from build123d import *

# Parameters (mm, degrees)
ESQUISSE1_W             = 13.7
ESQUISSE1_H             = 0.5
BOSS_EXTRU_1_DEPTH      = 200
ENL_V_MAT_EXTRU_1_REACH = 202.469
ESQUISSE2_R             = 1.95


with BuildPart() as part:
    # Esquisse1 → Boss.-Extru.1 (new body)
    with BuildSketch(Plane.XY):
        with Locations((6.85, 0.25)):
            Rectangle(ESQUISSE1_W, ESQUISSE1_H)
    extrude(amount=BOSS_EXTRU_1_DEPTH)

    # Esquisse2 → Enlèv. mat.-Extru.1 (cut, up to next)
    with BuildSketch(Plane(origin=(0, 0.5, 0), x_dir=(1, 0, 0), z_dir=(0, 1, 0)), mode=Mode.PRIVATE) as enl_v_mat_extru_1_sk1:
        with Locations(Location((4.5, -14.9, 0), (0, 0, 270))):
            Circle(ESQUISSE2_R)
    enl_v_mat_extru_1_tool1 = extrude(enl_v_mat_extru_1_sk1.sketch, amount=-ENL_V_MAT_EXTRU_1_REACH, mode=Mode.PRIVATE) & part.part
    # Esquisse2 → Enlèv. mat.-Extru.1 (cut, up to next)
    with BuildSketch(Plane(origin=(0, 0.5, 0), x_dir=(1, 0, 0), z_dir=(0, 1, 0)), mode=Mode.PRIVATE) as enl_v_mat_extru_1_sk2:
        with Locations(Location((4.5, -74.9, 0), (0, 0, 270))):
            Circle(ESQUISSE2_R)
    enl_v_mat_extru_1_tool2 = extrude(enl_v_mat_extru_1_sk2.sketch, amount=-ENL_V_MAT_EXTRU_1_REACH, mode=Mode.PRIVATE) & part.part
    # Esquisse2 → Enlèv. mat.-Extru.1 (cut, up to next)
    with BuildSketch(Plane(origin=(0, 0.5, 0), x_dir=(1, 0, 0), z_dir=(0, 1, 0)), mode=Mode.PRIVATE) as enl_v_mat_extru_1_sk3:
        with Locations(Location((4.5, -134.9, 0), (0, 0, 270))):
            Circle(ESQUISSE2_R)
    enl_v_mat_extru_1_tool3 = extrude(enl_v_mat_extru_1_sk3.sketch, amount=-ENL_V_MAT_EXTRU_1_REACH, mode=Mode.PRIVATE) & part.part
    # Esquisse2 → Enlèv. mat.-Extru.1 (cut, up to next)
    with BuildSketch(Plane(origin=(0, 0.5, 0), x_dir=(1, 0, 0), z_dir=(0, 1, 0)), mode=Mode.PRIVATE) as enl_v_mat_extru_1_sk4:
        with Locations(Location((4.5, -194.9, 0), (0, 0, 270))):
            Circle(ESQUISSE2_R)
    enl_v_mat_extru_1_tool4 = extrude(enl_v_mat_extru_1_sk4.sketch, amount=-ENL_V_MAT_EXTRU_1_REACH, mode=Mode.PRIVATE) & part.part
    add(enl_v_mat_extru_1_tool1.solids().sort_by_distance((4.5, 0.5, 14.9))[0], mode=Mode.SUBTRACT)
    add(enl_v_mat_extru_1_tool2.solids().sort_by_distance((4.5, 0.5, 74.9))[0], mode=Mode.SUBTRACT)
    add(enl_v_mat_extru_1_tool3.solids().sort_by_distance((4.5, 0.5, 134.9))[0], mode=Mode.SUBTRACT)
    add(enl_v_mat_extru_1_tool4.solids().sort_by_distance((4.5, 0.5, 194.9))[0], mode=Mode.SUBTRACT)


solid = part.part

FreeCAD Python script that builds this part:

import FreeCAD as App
import Part
import Sketcher

V = App.Vector

doc = App.newDocument("Part")
params = doc.addObject("Spreadsheet::Sheet", "Params")
for row, (alias, value) in enumerate([
    ("sketch1_width", "13.7 mm"),
    ("sketch1_height", "0.5 mm"),
    ("pad1_length", "200 mm"),
    ("sketch2_diameter", "3.9 mm"),
    ("sketch3_diameter", "3.9 mm"),
    ("sketch4_diameter", "3.9 mm"),
    ("sketch5_diameter", "3.9 mm"),
], start=1):
    params.set(f"A{row}", alias)
    params.set(f"B{row}", "=" + value)
    params.setAlias(f"B{row}", alias)

body = doc.addObject("PartDesign::Body", "Body")

sketch1 = body.newObject("Sketcher::SketchObject", "Sketch")
sketch1.AttachmentSupport = (doc.getObject("XY_Plane"), [""])
sketch1.MapMode = "FlatFace"
sketch1.addGeometry(Part.LineSegment(V(0, 0.5, 0), V(0, 0, 0)), False)
sketch1.addGeometry(Part.LineSegment(V(0, 0, 0), V(13.7, 0, 0)), False)
sketch1.addGeometry(Part.LineSegment(V(13.7, 0, 0), V(13.7, 0.5, 0)), False)
sketch1.addGeometry(Part.LineSegment(V(13.7, 0.5, 0), V(0, 0.5, 0)), False)
sketch1.addConstraint(Sketcher.Constraint("Coincident", 0, 2, 1, 1))
sketch1.addConstraint(Sketcher.Constraint("Coincident", 1, 2, 2, 1))
sketch1.addConstraint(Sketcher.Constraint("Coincident", 2, 2, 3, 1))
sketch1.addConstraint(Sketcher.Constraint("Coincident", 3, 2, 0, 1))
sketch1.addConstraint(Sketcher.Constraint("Vertical", 0))
sketch1.addConstraint(Sketcher.Constraint("Horizontal", 1))
sketch1.addConstraint(Sketcher.Constraint("Vertical", 2))
sketch1.addConstraint(Sketcher.Constraint("Horizontal", 3))
sketch1.addConstraint(Sketcher.Constraint("Coincident", 0, 2, -1, 1))
sketch1.addConstraint(Sketcher.Constraint("DistanceX", 1, 1, 1, 2, 13.7))
sketch1.addConstraint(Sketcher.Constraint("DistanceY", 0, 2, 0, 1, 0.5))
sketch1.setExpression("Constraints[9]", "Params.sketch1_width")
sketch1.setExpression("Constraints[10]", "Params.sketch1_height")
pad1 = body.newObject("PartDesign::Pad", "Pad")
pad1.Profile = sketch1
pad1.setExpression("Length", "Params.pad1_length")

sketch2 = body.newObject("Sketcher::SketchObject", "Sketch001")
sketch2.AttachmentSupport = (doc.getObject("XZ_Plane"), [""])
sketch2.MapMode = "FlatFace"
sketch2.AttachmentOffset = App.Placement(V(0, 0, -0.5), App.Rotation())
sketch2.addGeometry(Part.Circle(V(4.5, 14.9, 0), V(0, 0, 1), 1.9), False)
sketch2.addConstraint(Sketcher.Constraint("Diameter", 0, 3.9))
sketch2.addConstraint(Sketcher.Constraint("DistanceX", -1, 1, 0, 3, 4.5))
sketch2.addConstraint(Sketcher.Constraint("DistanceY", -1, 1, 0, 3, 14.9))
sketch2.setExpression("Constraints[0]", "Params.sketch2_diameter")
pocket1 = body.newObject("PartDesign::Pocket", "Pocket")
pocket1.Profile = sketch2
pocket1.Type = "UpToFirst"
pocket1.Reversed = True

sketch3 = body.newObject("Sketcher::SketchObject", "Sketch002")
sketch3.AttachmentSupport = (doc.getObject("XZ_Plane"), [""])
sketch3.MapMode = "FlatFace"
sketch3.AttachmentOffset = App.Placement(V(0, 0, -0.5), App.Rotation())
sketch3.addGeometry(Part.Circle(V(4.5, 74.9, 0), V(0, 0, 1), 1.9), False)
sketch3.addConstraint(Sketcher.Constraint("Diameter", 0, 3.9))
sketch3.addConstraint(Sketcher.Constraint("DistanceX", -1, 1, 0, 3, 4.5))
sketch3.addConstraint(Sketcher.Constraint("DistanceY", -1, 1, 0, 3, 74.9))
sketch3.setExpression("Constraints[0]", "Params.sketch3_diameter")
pocket2 = body.newObject("PartDesign::Pocket", "Pocket001")
pocket2.Profile = sketch3
pocket2.Type = "UpToFirst"
pocket2.Reversed = True

sketch4 = body.newObject("Sketcher::SketchObject", "Sketch003")
sketch4.AttachmentSupport = (doc.getObject("XZ_Plane"), [""])
sketch4.MapMode = "FlatFace"
sketch4.AttachmentOffset = App.Placement(V(0, 0, -0.5), App.Rotation())
sketch4.addGeometry(Part.Circle(V(4.5, 134.9, 0), V(0, 0, 1), 1.9), False)
sketch4.addConstraint(Sketcher.Constraint("Diameter", 0, 3.9))
sketch4.addConstraint(Sketcher.Constraint("DistanceX", -1, 1, 0, 3, 4.5))
sketch4.addConstraint(Sketcher.Constraint("DistanceY", -1, 1, 0, 3, 134.9))
sketch4.setExpression("Constraints[0]", "Params.sketch4_diameter")
pocket3 = body.newObject("PartDesign::Pocket", "Pocket002")
pocket3.Profile = sketch4
pocket3.Type = "UpToFirst"
pocket3.Reversed = True

sketch5 = body.newObject("Sketcher::SketchObject", "Sketch004")
sketch5.AttachmentSupport = (doc.getObject("XZ_Plane"), [""])
sketch5.MapMode = "FlatFace"
sketch5.AttachmentOffset = App.Placement(V(0, 0, -0.5), App.Rotation())
sketch5.addGeometry(Part.Circle(V(4.5, 194.9, 0), V(0, 0, 1), 1.9), False)
sketch5.addConstraint(Sketcher.Constraint("Diameter", 0, 3.9))
sketch5.addConstraint(Sketcher.Constraint("DistanceX", -1, 1, 0, 3, 4.5))
sketch5.addConstraint(Sketcher.Constraint("DistanceY", -1, 1, 0, 3, 194.9))
sketch5.setExpression("Constraints[0]", "Params.sketch5_diameter")
pocket4 = body.newObject("PartDesign::Pocket", "Pocket003")
pocket4.Profile = sketch5
pocket4.Type = "UpToFirst"
pocket4.Reversed = True

doc.recompute()
